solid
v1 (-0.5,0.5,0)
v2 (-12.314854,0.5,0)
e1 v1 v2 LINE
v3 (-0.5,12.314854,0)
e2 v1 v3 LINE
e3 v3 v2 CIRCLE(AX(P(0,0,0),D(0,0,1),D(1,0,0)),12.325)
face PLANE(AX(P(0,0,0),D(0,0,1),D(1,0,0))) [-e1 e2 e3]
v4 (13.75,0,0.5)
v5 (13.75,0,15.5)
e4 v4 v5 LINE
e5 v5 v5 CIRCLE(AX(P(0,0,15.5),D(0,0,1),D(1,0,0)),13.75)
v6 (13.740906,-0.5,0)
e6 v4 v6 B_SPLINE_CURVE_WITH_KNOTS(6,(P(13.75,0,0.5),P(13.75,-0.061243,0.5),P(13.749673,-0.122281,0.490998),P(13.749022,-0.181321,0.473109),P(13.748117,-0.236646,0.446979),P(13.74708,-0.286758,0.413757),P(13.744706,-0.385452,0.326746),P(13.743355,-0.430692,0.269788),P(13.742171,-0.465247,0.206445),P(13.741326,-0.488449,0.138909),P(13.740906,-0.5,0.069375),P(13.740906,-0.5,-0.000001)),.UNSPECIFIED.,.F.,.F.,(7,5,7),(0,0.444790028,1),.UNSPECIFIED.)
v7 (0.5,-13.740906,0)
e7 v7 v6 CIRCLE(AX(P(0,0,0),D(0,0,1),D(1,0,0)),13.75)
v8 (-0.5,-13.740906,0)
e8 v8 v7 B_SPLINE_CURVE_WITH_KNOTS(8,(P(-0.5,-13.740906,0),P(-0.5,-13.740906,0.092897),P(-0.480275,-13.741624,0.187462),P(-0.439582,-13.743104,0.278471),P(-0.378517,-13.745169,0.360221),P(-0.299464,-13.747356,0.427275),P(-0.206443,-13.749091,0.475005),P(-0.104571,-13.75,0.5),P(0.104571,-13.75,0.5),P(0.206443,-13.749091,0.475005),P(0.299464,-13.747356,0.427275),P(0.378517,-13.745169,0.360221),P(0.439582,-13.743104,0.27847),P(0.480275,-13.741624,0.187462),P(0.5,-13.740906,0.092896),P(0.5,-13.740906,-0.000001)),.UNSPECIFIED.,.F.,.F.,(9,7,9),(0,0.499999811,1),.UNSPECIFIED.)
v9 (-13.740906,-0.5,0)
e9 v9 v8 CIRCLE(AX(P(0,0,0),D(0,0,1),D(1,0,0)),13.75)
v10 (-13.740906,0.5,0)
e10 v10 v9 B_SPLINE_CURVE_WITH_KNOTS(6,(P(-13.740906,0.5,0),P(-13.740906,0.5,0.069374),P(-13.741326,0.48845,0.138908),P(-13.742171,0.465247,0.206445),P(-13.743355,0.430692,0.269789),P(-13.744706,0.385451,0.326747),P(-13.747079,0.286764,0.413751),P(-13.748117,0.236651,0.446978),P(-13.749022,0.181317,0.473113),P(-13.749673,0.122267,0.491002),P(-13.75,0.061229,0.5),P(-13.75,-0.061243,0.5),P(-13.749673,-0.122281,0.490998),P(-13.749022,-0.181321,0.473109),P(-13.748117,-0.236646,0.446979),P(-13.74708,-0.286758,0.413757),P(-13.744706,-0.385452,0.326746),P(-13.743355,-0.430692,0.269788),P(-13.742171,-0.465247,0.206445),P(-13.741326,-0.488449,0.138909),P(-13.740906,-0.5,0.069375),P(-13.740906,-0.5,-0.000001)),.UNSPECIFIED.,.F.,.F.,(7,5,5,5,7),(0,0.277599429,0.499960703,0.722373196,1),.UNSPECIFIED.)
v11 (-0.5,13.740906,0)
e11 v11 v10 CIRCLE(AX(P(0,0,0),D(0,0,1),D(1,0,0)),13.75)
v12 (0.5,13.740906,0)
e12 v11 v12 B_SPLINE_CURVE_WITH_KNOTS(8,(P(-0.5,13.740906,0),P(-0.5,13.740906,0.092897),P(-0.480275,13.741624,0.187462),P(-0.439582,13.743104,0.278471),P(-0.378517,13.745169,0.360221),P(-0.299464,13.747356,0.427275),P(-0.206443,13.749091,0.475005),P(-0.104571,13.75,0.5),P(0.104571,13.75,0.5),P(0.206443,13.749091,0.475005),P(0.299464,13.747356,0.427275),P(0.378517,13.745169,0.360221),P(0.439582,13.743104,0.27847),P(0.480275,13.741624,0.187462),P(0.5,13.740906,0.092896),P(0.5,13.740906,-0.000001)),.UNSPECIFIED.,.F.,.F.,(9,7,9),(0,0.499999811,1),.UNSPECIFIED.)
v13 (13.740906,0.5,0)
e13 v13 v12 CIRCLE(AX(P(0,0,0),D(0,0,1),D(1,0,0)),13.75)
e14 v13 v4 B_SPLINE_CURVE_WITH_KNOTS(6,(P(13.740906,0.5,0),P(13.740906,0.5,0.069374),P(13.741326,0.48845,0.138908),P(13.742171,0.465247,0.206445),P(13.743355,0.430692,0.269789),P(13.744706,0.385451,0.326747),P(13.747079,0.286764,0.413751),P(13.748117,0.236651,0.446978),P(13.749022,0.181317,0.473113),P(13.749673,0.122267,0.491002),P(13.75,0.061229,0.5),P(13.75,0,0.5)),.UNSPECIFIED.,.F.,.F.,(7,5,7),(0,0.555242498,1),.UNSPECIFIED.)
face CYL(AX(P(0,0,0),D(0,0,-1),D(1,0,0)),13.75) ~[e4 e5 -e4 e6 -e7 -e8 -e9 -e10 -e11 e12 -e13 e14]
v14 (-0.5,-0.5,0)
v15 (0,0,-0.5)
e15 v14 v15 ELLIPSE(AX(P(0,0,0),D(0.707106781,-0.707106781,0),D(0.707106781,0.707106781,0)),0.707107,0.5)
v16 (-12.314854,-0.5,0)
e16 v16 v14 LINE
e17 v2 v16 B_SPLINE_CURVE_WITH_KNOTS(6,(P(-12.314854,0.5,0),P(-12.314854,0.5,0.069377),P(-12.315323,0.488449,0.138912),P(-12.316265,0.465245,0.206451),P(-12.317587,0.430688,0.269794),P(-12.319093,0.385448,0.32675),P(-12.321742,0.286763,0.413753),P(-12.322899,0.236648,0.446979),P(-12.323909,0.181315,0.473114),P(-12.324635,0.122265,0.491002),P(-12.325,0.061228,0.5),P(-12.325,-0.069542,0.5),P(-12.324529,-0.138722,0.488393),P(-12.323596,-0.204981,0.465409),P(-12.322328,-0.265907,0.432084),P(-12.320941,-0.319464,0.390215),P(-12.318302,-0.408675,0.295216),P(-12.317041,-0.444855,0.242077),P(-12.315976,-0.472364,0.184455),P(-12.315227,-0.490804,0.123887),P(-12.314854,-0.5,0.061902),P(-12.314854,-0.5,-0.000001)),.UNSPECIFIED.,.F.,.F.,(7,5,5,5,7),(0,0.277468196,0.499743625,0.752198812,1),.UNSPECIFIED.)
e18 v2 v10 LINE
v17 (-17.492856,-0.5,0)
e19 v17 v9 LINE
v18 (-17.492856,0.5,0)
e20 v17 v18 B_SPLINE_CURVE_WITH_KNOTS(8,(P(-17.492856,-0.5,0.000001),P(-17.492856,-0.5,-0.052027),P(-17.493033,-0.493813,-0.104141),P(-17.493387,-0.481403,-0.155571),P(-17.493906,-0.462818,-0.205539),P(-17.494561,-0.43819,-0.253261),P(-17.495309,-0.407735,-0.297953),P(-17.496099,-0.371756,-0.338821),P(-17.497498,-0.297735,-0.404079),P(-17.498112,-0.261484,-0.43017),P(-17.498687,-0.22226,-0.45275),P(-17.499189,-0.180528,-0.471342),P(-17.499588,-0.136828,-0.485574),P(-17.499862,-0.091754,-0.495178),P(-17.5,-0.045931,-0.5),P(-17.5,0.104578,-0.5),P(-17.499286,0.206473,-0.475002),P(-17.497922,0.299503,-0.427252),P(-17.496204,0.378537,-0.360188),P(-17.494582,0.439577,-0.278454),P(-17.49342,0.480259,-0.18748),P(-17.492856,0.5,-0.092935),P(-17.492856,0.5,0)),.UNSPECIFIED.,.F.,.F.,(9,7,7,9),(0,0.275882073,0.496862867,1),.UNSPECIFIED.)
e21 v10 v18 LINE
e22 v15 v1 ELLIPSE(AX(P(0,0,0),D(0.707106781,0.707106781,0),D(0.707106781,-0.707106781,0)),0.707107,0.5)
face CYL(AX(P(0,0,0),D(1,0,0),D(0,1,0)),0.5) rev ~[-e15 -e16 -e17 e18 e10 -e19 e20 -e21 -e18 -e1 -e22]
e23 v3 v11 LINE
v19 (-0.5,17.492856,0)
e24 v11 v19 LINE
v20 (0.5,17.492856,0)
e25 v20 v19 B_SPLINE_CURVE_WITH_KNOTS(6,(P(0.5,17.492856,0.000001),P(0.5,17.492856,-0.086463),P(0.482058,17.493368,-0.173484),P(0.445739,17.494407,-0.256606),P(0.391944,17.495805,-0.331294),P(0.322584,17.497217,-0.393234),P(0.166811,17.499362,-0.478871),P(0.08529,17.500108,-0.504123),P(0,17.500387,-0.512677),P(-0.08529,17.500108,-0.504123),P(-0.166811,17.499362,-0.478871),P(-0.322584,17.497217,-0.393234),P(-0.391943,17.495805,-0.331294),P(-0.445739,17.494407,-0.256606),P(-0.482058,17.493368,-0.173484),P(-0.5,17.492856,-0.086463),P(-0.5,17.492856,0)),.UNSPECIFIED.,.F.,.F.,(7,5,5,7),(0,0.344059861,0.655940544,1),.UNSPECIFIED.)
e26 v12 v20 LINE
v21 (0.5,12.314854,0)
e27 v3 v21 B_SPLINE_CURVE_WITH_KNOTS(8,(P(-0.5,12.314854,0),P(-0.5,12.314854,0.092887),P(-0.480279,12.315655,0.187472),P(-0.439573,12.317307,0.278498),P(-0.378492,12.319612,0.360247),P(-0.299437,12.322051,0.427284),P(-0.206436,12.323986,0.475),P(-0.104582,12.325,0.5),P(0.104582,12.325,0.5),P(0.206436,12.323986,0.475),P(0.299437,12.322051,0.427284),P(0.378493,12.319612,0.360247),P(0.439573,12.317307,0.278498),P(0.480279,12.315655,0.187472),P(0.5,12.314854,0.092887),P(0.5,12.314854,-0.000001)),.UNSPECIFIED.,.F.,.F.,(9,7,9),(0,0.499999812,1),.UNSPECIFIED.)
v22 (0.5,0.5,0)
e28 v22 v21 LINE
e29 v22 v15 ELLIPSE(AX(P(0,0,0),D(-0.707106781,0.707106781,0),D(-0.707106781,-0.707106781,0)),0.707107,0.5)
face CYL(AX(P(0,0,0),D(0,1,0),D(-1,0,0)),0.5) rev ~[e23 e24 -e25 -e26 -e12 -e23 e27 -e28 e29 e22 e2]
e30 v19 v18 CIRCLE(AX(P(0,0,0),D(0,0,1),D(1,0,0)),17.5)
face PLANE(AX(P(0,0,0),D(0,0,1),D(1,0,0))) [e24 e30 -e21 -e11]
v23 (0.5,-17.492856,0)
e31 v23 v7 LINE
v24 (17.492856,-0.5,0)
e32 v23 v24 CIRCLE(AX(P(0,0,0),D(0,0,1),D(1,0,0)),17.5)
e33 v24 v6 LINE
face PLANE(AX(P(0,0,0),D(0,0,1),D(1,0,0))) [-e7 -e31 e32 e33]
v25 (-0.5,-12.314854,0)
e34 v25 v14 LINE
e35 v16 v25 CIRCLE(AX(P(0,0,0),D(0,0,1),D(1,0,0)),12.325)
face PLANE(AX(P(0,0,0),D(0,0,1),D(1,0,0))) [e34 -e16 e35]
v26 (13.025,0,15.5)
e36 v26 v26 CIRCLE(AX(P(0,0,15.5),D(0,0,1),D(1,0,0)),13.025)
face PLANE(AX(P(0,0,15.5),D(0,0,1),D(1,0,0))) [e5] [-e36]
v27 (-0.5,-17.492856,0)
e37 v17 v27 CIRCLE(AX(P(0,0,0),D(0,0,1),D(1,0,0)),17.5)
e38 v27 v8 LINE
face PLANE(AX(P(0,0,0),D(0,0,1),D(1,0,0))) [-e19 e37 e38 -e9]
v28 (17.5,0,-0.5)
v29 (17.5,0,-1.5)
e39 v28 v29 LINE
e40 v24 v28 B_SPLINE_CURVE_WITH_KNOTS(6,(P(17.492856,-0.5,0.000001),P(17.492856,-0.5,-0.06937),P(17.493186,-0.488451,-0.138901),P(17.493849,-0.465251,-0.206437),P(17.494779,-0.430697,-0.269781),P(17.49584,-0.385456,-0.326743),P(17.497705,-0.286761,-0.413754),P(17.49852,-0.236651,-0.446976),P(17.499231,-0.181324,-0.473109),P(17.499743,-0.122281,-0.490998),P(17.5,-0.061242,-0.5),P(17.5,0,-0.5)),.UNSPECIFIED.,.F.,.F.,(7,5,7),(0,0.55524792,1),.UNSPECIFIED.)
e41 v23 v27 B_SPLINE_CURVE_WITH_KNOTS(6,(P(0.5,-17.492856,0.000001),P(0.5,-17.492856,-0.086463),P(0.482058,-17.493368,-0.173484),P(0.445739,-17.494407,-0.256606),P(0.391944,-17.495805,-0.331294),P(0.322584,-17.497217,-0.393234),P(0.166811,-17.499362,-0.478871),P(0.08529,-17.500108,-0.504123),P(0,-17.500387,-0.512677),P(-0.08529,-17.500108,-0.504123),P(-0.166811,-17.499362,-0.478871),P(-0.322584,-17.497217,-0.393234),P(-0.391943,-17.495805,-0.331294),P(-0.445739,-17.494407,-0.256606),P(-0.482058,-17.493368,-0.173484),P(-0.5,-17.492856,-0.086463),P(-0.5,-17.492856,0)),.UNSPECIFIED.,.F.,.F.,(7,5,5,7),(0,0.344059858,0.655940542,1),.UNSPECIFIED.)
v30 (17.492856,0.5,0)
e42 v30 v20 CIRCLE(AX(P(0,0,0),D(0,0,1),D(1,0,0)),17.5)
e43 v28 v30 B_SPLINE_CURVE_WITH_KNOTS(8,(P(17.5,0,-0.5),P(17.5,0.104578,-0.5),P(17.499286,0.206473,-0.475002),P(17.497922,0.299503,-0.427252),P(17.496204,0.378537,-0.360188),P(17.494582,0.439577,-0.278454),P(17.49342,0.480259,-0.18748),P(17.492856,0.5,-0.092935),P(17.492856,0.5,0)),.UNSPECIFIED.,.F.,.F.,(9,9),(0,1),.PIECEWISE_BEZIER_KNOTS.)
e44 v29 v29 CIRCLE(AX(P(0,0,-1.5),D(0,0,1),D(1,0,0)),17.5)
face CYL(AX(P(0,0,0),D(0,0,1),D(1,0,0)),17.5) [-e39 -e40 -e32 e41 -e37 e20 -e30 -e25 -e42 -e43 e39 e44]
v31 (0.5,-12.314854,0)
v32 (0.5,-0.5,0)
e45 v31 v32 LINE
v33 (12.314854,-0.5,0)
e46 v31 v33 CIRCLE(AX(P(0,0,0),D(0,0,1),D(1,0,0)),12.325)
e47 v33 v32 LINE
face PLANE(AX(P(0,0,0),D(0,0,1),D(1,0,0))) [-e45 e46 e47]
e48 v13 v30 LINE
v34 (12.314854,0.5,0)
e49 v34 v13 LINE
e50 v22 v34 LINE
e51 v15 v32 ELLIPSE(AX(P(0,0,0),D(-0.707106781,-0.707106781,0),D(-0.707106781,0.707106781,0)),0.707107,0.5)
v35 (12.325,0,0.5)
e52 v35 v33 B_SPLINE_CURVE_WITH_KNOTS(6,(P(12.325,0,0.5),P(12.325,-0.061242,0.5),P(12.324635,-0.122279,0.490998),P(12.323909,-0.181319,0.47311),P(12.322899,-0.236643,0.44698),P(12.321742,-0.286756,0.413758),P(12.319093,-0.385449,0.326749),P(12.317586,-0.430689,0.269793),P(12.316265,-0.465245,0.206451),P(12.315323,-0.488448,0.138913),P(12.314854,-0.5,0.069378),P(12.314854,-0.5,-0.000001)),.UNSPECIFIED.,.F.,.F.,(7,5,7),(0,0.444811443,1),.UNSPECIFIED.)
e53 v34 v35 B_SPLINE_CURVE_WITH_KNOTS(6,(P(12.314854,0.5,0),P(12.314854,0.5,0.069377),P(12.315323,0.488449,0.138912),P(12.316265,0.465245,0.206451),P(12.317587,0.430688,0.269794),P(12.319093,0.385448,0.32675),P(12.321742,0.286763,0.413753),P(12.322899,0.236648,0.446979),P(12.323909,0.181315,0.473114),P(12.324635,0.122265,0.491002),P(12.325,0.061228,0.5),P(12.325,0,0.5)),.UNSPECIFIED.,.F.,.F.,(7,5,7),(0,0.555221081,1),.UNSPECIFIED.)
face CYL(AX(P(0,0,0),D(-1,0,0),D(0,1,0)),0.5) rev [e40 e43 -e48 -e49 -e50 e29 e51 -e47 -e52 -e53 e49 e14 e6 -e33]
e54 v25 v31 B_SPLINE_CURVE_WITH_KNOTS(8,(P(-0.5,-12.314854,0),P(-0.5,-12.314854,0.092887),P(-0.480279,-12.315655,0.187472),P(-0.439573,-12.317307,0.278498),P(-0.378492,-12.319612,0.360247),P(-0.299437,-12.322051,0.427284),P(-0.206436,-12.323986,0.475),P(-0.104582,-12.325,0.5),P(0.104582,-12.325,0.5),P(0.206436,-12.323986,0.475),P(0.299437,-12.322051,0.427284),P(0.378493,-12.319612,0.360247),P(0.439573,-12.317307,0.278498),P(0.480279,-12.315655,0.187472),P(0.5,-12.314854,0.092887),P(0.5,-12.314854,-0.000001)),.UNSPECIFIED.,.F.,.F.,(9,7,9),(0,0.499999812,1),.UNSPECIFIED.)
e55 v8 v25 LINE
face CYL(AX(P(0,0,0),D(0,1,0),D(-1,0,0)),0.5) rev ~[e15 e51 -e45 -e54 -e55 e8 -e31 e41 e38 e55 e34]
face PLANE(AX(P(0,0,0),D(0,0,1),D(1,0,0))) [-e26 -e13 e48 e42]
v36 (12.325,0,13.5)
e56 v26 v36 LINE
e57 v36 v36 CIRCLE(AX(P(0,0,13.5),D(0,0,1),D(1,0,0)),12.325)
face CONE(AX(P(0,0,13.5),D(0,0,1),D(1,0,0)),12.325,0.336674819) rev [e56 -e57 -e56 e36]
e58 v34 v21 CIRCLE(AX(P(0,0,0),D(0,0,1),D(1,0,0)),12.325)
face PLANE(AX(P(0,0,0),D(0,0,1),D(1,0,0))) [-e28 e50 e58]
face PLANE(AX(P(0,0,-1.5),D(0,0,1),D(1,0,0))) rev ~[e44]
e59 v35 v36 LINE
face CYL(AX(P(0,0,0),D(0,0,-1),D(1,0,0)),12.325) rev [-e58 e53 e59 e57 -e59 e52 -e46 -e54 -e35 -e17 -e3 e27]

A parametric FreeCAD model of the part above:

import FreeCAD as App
import Part
import Sketcher
from FreeCAD import Vector
Q = App.Units.Quantity


def edges_at(feature, points):
    """Names of the edges that pass closest to the given points."""
    edges = feature.Shape.Edges
    near = lambda p: min(range(len(edges)), key=lambda i: edges[i].distToShape(Part.Vertex(*p))[0])
    return sorted({f"Edge{near(p) + 1}" for p in points})

doc = App.newDocument("Part")
params = doc.addObject("Spreadsheet::Sheet", "Params")
for row, (alias, value) in enumerate([
    ("sketch1_diameter", "27.5 mm"),
    ("sketch1_diameter2", "24.65 mm"),
    ("pad1_length", "15.5 mm"),
    ("sketch2_diameter", "35 mm"),
    ("pad2_length", "1.5 mm"),
    ("chamfer_size", "0.7 mm"),
    ("chamfer_size2", "2 mm"),
    ("sketch3_diameter", "1 mm"),
], start=1):
    params.set(f"A{row}", alias)
    params.set(f"B{row}", "=" + value)
    params.setAlias(f"B{row}", alias)

body = doc.addObject("PartDesign::Body", "Body")

# Sketch on XY plane
sketch1 = body.newObject("Sketcher::SketchObject", "Sketch")
sketch1.AttachmentSupport = (doc.getObject("XY_Plane"), [""])
sketch1.MapMode = "FlatFace"
sketch1.addGeometry(Part.Circle(Vector(0, 0, 0), Vector(0, 0, 1), 14), False)
sketch1.addGeometry(Part.Circle(Vector(0, 0, 0), Vector(0, 0, 1), 12), False)
sketch1.addConstraint(Sketcher.Constraint("Coincident", 0, 3, -1, 1))
sketch1.addConstraint(Sketcher.Constraint("Coincident", 1, 3, -1, 1))
sketch1.addConstraint(Sketcher.Constraint("Diameter", 0, Q("27.5 mm")))
sketch1.addConstraint(Sketcher.Constraint("Diameter", 1, Q("24.65 mm")))
sketch1.setExpression("Constraints[2]", "Params.sketch1_diameter")
sketch1.setExpression("Constraints[3]", "Params.sketch1_diameter2")
pad1 = body.newObject("PartDesign::Pad", "Pad")
pad1.Profile = sketch1
pad1.setExpression("Length", "Params.pad1_length")

# Sketch on XY plane
sketch2 = body.newObject("Sketcher::SketchObject", "Sketch001")
sketch2.AttachmentSupport = (doc.getObject("XY_Plane"), [""])
sketch2.MapMode = "FlatFace"
sketch2.addGeometry(Part.Circle(Vector(0, 0, 0), Vector(0, 0, 1), 18), False)
sketch2.addConstraint(Sketcher.Constraint("Coincident", 0, 3, -1, 1))
sketch2.addConstraint(Sketcher.Constraint("Diameter", 0, Q("35 mm")))
sketch2.setExpression("Constraints[1]", "Params.sketch2_diameter")
pad2 = body.newObject("PartDesign::Pad", "Pad001")
pad2.Profile = sketch2
pad2.setExpression("Length", "Params.pad2_length")
pad2.Reversed = True
doc.recompute()

chamfer = body.newObject("PartDesign::Chamfer", "Chamfer")
chamfer.Base = (pad2, edges_at(pad2, [(-12.325, 0, 15.5)]))
chamfer.ChamferType = "Two distances"
chamfer.setExpression("Size", "Params.chamfer_size")
chamfer.setExpression("Size2", "Params.chamfer_size2")

# Sketch on YZ plane
sketch3 = body.newObject("Sketcher::SketchObject", "Sketch002")
sketch3.AttachmentSupport = (doc.getObject("YZ_Plane"), [""])
sketch3.MapMode = "FlatFace"
sketch3.addGeometry(Part.Circle(Vector(0, 0, 0), Vector(0, 0, 1), 0.5), False)
sketch3.addConstraint(Sketcher.Constraint("Coincident", 0, 3, -1, 1))
sketch3.addConstraint(Sketcher.Constraint("Diameter", 0, Q("1 mm")))
sketch3.setExpression("Constraints[1]", "Params.sketch3_diameter")
pocket1 = body.newObject("PartDesign::Pocket", "Pocket")
pocket1.Profile = sketch3
pocket1.Type = "ThroughAll"
pocket1.Midplane = True
doc.recompute()

polarpattern = body.newObject("PartDesign::PolarPattern", "PolarPattern")
polarpattern.Originals = [pocket1]
polarpattern.Axis = (doc.getObject("Z_Axis"), [""])
polarpattern.Angle = 90
polarpattern.Occurrences = 2
body.Tip = polarpattern

doc.recompute()
